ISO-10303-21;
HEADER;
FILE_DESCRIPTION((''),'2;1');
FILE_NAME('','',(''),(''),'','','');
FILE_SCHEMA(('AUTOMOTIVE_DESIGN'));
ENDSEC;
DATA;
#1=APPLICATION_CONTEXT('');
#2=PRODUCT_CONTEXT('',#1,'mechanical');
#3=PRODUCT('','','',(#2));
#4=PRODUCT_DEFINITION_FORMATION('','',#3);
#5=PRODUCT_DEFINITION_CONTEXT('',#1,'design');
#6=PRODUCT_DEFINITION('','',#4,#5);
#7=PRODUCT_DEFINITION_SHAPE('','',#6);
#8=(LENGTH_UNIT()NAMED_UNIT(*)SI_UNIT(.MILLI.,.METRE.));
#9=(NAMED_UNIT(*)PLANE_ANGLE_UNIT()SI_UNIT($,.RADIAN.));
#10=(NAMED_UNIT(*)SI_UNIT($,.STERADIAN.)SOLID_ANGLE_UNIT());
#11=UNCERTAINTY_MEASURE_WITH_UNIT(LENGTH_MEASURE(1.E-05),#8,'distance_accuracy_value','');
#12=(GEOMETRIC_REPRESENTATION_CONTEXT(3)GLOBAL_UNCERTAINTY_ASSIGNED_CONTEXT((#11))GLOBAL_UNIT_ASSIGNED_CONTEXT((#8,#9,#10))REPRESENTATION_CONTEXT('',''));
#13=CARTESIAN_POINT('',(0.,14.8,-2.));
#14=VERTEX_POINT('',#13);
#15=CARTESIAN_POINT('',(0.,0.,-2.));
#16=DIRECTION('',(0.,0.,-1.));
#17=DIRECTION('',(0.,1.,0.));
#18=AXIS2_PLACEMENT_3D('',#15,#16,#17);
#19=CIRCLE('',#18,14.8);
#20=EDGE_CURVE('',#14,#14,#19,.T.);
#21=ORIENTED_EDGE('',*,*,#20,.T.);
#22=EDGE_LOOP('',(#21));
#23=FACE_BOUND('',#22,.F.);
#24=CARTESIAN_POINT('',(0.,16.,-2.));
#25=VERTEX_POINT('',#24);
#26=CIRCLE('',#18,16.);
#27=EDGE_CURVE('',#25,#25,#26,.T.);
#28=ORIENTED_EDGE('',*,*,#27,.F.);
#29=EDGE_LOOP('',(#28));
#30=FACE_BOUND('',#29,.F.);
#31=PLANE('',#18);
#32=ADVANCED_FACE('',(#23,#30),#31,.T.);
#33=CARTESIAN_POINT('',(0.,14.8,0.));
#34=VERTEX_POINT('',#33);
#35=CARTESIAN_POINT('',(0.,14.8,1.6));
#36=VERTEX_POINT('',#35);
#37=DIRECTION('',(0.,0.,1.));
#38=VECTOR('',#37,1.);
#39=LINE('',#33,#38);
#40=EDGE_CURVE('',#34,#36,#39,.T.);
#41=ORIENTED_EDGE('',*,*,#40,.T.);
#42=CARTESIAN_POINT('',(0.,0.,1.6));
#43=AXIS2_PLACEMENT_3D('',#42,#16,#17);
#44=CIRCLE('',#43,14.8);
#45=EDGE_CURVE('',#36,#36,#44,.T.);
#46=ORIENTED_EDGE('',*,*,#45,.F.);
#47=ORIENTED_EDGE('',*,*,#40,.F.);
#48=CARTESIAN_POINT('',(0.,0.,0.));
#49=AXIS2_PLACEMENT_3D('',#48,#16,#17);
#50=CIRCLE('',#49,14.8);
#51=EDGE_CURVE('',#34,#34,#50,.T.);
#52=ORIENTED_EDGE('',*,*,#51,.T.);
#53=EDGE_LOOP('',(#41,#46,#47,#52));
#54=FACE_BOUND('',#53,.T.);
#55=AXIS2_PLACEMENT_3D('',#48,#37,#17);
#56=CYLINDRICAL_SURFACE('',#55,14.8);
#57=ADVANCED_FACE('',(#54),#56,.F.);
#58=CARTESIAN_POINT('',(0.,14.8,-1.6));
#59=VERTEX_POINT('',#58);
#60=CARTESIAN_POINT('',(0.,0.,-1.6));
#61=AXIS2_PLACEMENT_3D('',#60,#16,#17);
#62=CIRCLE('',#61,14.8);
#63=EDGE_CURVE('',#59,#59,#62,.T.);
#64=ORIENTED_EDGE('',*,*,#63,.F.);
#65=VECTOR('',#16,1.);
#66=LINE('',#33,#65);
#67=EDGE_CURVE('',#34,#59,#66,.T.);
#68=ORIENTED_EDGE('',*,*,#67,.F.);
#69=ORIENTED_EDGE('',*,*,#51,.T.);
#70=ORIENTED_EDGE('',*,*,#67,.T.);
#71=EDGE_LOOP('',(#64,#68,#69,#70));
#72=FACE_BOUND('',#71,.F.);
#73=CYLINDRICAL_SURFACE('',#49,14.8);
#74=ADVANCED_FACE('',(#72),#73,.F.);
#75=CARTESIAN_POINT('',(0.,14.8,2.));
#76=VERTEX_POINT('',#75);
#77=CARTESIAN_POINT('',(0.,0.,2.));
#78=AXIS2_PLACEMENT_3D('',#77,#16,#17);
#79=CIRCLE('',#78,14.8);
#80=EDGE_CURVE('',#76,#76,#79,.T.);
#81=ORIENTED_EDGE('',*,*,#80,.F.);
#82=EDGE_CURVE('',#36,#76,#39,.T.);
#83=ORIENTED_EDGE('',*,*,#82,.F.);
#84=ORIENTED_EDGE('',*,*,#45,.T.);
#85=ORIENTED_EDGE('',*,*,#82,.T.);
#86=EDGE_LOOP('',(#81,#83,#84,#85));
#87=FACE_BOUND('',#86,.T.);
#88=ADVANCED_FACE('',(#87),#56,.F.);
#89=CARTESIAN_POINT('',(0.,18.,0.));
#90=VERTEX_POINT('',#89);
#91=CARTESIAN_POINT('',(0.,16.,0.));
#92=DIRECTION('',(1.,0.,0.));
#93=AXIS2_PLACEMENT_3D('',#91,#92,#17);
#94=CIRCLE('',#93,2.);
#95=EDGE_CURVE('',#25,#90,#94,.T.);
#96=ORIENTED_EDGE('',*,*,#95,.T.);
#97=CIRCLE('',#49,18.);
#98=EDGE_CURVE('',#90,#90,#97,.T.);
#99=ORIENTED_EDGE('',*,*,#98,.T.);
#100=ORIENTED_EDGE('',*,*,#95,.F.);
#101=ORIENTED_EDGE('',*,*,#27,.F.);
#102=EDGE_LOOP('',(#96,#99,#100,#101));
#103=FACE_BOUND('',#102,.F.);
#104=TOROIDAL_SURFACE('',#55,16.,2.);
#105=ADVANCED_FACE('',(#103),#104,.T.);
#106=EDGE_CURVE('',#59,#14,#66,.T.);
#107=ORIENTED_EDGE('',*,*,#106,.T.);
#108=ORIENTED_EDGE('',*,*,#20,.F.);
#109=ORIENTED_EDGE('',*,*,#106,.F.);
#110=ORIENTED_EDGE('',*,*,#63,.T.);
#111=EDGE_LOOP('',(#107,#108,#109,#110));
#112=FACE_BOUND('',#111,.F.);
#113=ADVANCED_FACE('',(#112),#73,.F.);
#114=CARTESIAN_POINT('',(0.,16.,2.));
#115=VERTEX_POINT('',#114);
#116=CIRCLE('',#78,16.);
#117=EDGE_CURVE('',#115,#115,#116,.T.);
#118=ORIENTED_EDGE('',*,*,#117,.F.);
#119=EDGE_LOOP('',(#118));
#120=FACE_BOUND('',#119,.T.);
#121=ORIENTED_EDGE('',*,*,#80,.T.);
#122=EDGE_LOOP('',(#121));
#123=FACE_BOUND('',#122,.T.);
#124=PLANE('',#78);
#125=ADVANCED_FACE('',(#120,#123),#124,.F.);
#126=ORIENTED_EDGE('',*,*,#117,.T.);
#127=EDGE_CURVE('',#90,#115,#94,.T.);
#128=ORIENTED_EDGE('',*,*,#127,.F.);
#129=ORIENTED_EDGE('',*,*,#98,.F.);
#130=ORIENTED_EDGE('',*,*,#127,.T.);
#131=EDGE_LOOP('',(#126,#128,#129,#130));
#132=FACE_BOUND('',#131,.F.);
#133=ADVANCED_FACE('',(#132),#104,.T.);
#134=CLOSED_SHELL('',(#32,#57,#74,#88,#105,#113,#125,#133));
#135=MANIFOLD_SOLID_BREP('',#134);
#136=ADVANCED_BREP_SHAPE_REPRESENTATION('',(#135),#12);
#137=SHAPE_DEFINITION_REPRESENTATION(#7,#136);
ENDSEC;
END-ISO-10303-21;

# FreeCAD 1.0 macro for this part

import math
import FreeCAD as App
import Part
import Sketcher

V = App.Vector
Q = App.Units.Quantity

doc = App.newDocument("Part")
body = doc.addObject("PartDesign::Body", "Body")

# Sketch on YZ plane
sketch1 = body.newObject("Sketcher::SketchObject", "Sketch")
sketch1.AttachmentSupport = (doc.getObject("YZ_Plane"), [""])
sketch1.MapMode = "FlatFace"
sketch1.addGeometry(Part.LineSegment(V(14.8, -2, 0), V(16, -2, 0)), False)
sketch1.addGeometry(Part.ArcOfCircle(Part.Circle(V(16, 0, 0), V(0, 0, 1), 2), math.radians(-90), math.radians(90)), False)
sketch1.addGeometry(Part.LineSegment(V(16, 2, 0), V(14.8, 2, 0)), False)
sketch1.addGeometry(Part.LineSegment(V(14.8, 2, 0), V(14.8, -2, 0)), False)
sketch1.addConstraint(Sketcher.Constraint("Tangent", 0, 2, 1, 1))
sketch1.addConstraint(Sketcher.Constraint("Tangent", 1, 2, 2, 1))
sketch1.addConstraint(Sketcher.Constraint("Coincident", 2, 2, 3, 1))
sketch1.addConstraint(Sketcher.Constraint("Coincident", 3, 2, 0, 1))
sketch1.addConstraint(Sketcher.Constraint("Horizontal", 0))
sketch1.addConstraint(Sketcher.Constraint("Horizontal", 2))
sketch1.addConstraint(Sketcher.Constraint("Vertical", 3))
sketch1.addConstraint(Sketcher.Constraint("PointOnObject", 1, 3, -1))
sketch1.addConstraint(Sketcher.Constraint("Radius", 1, Q("2 mm")))
sketch1.addConstraint(Sketcher.Constraint("DistanceX", 0, 1, 0, 2, Q("1.2 mm")))
sketch1.addConstraint(Sketcher.Constraint("DistanceX", -1, 1, 1, 3, Q("16 mm")))
revolution = body.newObject("PartDesign::Revolution", "Revolution")
revolution.Profile = sketch1
revolution.ReferenceAxis = (sketch1, ["V_Axis"])
revolution.Angle = 360

doc.recompute()
